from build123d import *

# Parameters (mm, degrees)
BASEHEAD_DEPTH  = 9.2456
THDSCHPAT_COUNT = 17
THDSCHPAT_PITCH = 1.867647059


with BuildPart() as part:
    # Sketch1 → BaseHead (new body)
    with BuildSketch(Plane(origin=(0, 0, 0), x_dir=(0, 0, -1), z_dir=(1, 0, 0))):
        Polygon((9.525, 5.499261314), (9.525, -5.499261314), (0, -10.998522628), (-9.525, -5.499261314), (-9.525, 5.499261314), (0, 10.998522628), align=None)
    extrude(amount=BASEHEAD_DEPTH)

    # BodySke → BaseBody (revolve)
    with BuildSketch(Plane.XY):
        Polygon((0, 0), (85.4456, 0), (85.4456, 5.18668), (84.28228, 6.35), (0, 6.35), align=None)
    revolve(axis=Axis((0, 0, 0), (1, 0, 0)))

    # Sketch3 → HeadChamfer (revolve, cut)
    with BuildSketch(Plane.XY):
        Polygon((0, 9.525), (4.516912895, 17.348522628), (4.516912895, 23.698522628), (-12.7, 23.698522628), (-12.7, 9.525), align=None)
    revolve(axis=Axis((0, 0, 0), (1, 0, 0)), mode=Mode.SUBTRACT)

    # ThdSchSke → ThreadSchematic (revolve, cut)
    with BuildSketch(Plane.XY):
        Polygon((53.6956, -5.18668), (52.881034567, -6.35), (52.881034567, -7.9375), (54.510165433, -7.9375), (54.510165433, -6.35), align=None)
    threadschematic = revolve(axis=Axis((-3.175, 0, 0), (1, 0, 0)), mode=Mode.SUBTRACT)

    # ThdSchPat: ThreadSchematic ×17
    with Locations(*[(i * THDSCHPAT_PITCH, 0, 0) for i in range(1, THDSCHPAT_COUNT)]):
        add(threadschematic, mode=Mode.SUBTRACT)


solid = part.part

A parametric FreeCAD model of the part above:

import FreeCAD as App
import Part
import Sketcher
Q = App.Units.Quantity


def add_polygon(sketch, points):
    """Adds a closed chain of lines whose ends are joined by coincident constraints."""
    first, n = sketch.GeometryCount, len(points)
    for a, b in zip(points, points[1:] + points[:1]):
        sketch.addGeometry(Part.LineSegment(App.Vector(*a, 0), App.Vector(*b, 0)), False)
    for i in range(n):
        sketch.addConstraint(Sketcher.Constraint("Coincident", first + i, 2, first + (i + 1) % n, 1))

doc = App.newDocument("Part")
params = doc.addObject("Spreadsheet::Sheet", "Params")
for row, (alias, value) in enumerate([
    ("pad1_length", "0.364 in"),
    ("sketch2_height", "0.25 in"),
    ("sketch2_width", "3.364 in"),
    ("revolution_angle", "360 deg"),
    ("sketch3_width", "0.5 in"),
    ("sketch3_height", "0.25 in"),
    ("groove_angle", "360 deg"),
    ("sketch4_height", "0.0625 in"),
    ("groove2_angle", "360 deg"),
    ("linearpattern_pitch", "1.867647 mm"),
], start=1):
    params.set(f"A{row}", alias)
    params.set(f"B{row}", "=" + value)
    params.setAlias(f"B{row}", alias)

body = doc.addObject("PartDesign::Body", "Body")

# Sketch on YZ plane
sketch1 = body.newObject("Sketcher::SketchObject", "Sketch")
sketch1.AttachmentSupport = (doc.getObject("YZ_Plane"), [""])
sketch1.MapMode = "FlatFace"
add_polygon(sketch1, [(-5, -10), (5, -10), (11, 0), (5, 10), (-5, 10), (-11, 0)])  # lines 0-5
sketch1.addConstraint(Sketcher.Constraint("Horizontal", 0))
sketch1.addConstraint(Sketcher.Constraint("Horizontal", 3))
sketch1.addConstraint(Sketcher.Constraint("Symmetric", 0, 2, 3, 2, -1, 1))
sketch1.addConstraint(Sketcher.Constraint("Symmetric", 1, 2, 4, 2, -1, 1))
sketch1.addConstraint(Sketcher.Constraint("PointOnObject", 1, 2, -1))
sketch1.addConstraint(Sketcher.Constraint("Parallel", 2, 5))
sketch1.addConstraint(Sketcher.Constraint("Vertical", 0, 2, 2, 2))
sketch1.addConstraint(Sketcher.Constraint("Angle", 1, Q("60 deg")))
sketch1.addConstraint(Sketcher.Constraint("DistanceY", 0, 2, 2, 2, Q("0.75 in")))
sketch1.addConstraint(Sketcher.Constraint("DistanceX", 0, 1, 0, 2, 10.998523))
pad1 = body.newObject("PartDesign::Pad", "Pad")
pad1.Profile = sketch1
pad1.setExpression("Length", "Params.pad1_length")

# Sketch on XY plane
sketch2 = body.newObject("Sketcher::SketchObject", "Sketch001")
sketch2.AttachmentSupport = (doc.getObject("XY_Plane"), [""])
sketch2.MapMode = "FlatFace"
add_polygon(sketch2, [(0, 0), (85.4, 0), (85.4, 5.2), (84.3, 6.3), (0, 6.3)])  # lines 0-4
sketch2.addConstraint(Sketcher.Constraint("Horizontal", 0))
sketch2.addConstraint(Sketcher.Constraint("Vertical", 1))
sketch2.addConstraint(Sketcher.Constraint("Horizontal", 3))
sketch2.addConstraint(Sketcher.Constraint("Vertical", 4))
sketch2.addConstraint(Sketcher.Constraint("Coincident", 4, 2, -1, 1))
sketch2.addConstraint(Sketcher.Constraint("Angle", 2, Q("135 deg")))
sketch2.addConstraint(Sketcher.Constraint("DistanceY", 4, 2, 4, 1, Q("0.25 in")))
sketch2.addConstraint(Sketcher.Constraint("DistanceX", 0, 1, 0, 2, Q("3.364 in")))
sketch2.addConstraint(Sketcher.Constraint("DistanceX", 3, 2, 3, 1, Q("3.3182 in")))
sketch2.setExpression("Constraints[11]", "Params.sketch2_height")
sketch2.setExpression("Constraints[12]", "Params.sketch2_width")
revolution = body.newObject("PartDesign::Revolution", "Revolution")
revolution.Profile = sketch2
revolution.ReferenceAxis = (sketch2, ["H_Axis"])
revolution.setExpression("Angle", "Params.revolution_angle")

# Sketch on XY plane
sketch3 = body.newObject("Sketcher::SketchObject", "Sketch002")
sketch3.AttachmentSupport = (doc.getObject("XY_Plane"), [""])
sketch3.MapMode = "FlatFace"
add_polygon(sketch3, [(0, 10), (5, 17), (5, 24), (-13, 24), (-13, 10)])  # lines 0-4
sketch3.addConstraint(Sketcher.Constraint("Vertical", 1))
sketch3.addConstraint(Sketcher.Constraint("Horizontal", 2))
sketch3.addConstraint(Sketcher.Constraint("Vertical", 3))
sketch3.addConstraint(Sketcher.Constraint("Horizontal", 4))
sketch3.addConstraint(Sketcher.Constraint("PointOnObject", 4, 2, -2))
sketch3.addConstraint(Sketcher.Constraint("DistanceX", 4, 1, 4, 2, Q("0.5 in")))
sketch3.addConstraint(Sketcher.Constraint("Angle", 0, Q("60 deg")))
sketch3.addConstraint(Sketcher.Constraint("DistanceY", 1, 1, 1, 2, Q("0.25 in")))
sketch3.addConstraint(Sketcher.Constraint("DistanceY", -1, 1, 3, 2, Q("0.375 in")))
sketch3.addConstraint(Sketcher.Constraint("DistanceX", 2, 2, 2, 1, 17.216913))
sketch3.setExpression("Constraints[10]", "Params.sketch3_width")
sketch3.setExpression("Constraints[12]", "Params.sketch3_height")
groove = body.newObject("PartDesign::Groove", "Groove")
groove.Profile = sketch3
groove.ReferenceAxis = (sketch3, ["H_Axis"])
groove.setExpression("Angle", "Params.groove_angle")

# Sketch on XY plane
sketch4 = body.newObject("Sketcher::SketchObject", "Sketch003")
sketch4.AttachmentSupport = (doc.getObject("XY_Plane"), [""])
sketch4.MapMode = "FlatFace"
add_polygon(sketch4, [(53.7, -5.2), (52.9, -6.3), (52.9, -7.9), (54.5, -7.9), (54.5, -6.3)])  # lines 0-4
sketch4.addConstraint(Sketcher.Constraint("Vertical", 1))
sketch4.addConstraint(Sketcher.Constraint("Horizontal", 2))
sketch4.addConstraint(Sketcher.Constraint("Vertical", 3))
sketch4.addConstraint(Sketcher.Constraint("Horizontal", 0, 2, 3, 2))
sketch4.addConstraint(Sketcher.Constraint("Equal", 0, 4))
sketch4.addConstraint(Sketcher.Constraint("Angle", 0, Q("-125 deg")))
sketch4.addConstraint(Sketcher.Constraint("DistanceY", 1, 2, 1, 1, Q("0.0625 in")))
sketch4.addConstraint(Sketcher.Constraint("DistanceY", 0, 2, -1, 1, Q("0.25 in")))
sketch4.addConstraint(Sketcher.Constraint("DistanceX", -1, 1, 4, 2, Q("2.114 in")))
sketch4.addConstraint(Sketcher.Constraint("DistanceY", 4, 2, -1, 1, Q("0.2042 in")))
sketch4.setExpression("Constraints[11]", "Params.sketch4_height")
groove2 = body.newObject("PartDesign::Groove", "Groove001")
groove2.Profile = sketch4
groove2.ReferenceAxis = (sketch4, ["H_Axis"])
groove2.setExpression("Angle", "Params.groove2_angle")
doc.recompute()

linearpattern = body.newObject("PartDesign::LinearPattern", "LinearPattern")
linearpattern.Originals = [groove2]
linearpattern.Direction = (doc.getObject("X_Axis"), [""])
linearpattern.Mode = "offset"
linearpattern.setExpression("Offset", "Params.linearpattern_pitch")
linearpattern.Occurrences = 17
body.Tip = linearpattern

doc.recompute()
